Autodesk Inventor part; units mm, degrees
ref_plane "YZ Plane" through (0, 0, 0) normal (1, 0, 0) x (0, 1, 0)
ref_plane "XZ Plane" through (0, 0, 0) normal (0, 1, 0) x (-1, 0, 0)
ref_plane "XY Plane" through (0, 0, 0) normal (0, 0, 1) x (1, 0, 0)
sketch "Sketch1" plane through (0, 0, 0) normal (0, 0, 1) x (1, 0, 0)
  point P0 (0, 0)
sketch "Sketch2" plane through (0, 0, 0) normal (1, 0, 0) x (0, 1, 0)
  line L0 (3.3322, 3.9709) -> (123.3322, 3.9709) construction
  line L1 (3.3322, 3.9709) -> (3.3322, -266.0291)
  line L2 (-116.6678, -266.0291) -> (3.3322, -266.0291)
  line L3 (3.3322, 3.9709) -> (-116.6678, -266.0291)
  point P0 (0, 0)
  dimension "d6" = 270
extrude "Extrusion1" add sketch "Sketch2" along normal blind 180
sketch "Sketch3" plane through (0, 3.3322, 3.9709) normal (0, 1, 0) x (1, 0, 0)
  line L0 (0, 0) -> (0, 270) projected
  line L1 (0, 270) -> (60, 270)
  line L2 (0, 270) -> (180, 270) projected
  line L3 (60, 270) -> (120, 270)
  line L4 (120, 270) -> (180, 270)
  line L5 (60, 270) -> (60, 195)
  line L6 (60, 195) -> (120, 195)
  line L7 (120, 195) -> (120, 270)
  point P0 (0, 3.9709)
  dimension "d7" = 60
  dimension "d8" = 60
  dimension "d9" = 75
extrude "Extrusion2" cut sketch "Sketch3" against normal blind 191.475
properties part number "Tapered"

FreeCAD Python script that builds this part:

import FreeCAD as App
import Part
import Sketcher
Q = App.Units.Quantity


def add_polygon(sketch, points):
    """Adds a closed chain of lines whose ends are joined by coincident constraints."""
    first, n = sketch.GeometryCount, len(points)
    for a, b in zip(points, points[1:] + points[:1]):
        sketch.addGeometry(Part.LineSegment(App.Vector(*a, 0), App.Vector(*b, 0)), False)
    for i in range(n):
        sketch.addConstraint(Sketcher.Constraint("Coincident", first + i, 2, first + (i + 1) % n, 1))

doc = App.newDocument("Part")
body = doc.addObject("PartDesign::Body", "Body")

sketch1 = body.newObject("Sketcher::SketchObject", "Sketch")
sketch1.AttachmentSupport = (doc.getObject("YZ_Plane"), [""])
sketch1.MapMode = "FlatFace"
add_polygon(sketch1, [(3, -266), (3, 4), (-117, -266)])
sketch1.addConstraint([
    Sketcher.Constraint("Vertical", 0),
    Sketcher.Constraint("Horizontal", 2),
    Sketcher.Constraint("DistanceY", 0, 1, 0, 2, Q("270 mm")),
    Sketcher.Constraint("DistanceX", 2, 1, 2, 2, Q("120 mm")),
    Sketcher.Constraint("DistanceY", -1, 1, 0, 2, Q("3.971 mm")),
    Sketcher.Constraint("DistanceX", -1, 1, 0, 2, Q("3.3322 mm")),
])
pad1 = body.newObject("PartDesign::Pad", "Pad")
pad1.Profile = sketch1
pad1.Length = 180

sketch2 = body.newObject("Sketcher::SketchObject", "Sketch001")
sketch2.AttachmentSupport = (doc.getObject("XZ_Plane"), [""])
sketch2.MapMode = "FlatFace"
sketch2.AttachmentOffset = App.Placement(App.Vector(0, 0, -3.3322), App.Rotation())
add_polygon(sketch2, [(120, -266), (60, -266), (60, -191), (120, -191)])
sketch2.addConstraint([
    Sketcher.Constraint("Horizontal", 0),
    Sketcher.Constraint("Vertical", 1),
    Sketcher.Constraint("Horizontal", 2),
    Sketcher.Constraint("Vertical", 3),
    Sketcher.Constraint("DistanceX", 0, 2, 0, 1, Q("60 mm")),
    Sketcher.Constraint("DistanceY", 1, 1, 1, 2, Q("75 mm")),
    Sketcher.Constraint("DistanceX", -1, 1, 0, 2, Q("60 mm")),
    Sketcher.Constraint("DistanceY", 0, 2, -1, 1, Q("266.029 mm")),
])
pocket1 = body.newObject("PartDesign::Pocket", "Pocket")
pocket1.Profile = sketch2
pocket1.Length = 191.475
pocket1.Reversed = True

doc.recompute()
